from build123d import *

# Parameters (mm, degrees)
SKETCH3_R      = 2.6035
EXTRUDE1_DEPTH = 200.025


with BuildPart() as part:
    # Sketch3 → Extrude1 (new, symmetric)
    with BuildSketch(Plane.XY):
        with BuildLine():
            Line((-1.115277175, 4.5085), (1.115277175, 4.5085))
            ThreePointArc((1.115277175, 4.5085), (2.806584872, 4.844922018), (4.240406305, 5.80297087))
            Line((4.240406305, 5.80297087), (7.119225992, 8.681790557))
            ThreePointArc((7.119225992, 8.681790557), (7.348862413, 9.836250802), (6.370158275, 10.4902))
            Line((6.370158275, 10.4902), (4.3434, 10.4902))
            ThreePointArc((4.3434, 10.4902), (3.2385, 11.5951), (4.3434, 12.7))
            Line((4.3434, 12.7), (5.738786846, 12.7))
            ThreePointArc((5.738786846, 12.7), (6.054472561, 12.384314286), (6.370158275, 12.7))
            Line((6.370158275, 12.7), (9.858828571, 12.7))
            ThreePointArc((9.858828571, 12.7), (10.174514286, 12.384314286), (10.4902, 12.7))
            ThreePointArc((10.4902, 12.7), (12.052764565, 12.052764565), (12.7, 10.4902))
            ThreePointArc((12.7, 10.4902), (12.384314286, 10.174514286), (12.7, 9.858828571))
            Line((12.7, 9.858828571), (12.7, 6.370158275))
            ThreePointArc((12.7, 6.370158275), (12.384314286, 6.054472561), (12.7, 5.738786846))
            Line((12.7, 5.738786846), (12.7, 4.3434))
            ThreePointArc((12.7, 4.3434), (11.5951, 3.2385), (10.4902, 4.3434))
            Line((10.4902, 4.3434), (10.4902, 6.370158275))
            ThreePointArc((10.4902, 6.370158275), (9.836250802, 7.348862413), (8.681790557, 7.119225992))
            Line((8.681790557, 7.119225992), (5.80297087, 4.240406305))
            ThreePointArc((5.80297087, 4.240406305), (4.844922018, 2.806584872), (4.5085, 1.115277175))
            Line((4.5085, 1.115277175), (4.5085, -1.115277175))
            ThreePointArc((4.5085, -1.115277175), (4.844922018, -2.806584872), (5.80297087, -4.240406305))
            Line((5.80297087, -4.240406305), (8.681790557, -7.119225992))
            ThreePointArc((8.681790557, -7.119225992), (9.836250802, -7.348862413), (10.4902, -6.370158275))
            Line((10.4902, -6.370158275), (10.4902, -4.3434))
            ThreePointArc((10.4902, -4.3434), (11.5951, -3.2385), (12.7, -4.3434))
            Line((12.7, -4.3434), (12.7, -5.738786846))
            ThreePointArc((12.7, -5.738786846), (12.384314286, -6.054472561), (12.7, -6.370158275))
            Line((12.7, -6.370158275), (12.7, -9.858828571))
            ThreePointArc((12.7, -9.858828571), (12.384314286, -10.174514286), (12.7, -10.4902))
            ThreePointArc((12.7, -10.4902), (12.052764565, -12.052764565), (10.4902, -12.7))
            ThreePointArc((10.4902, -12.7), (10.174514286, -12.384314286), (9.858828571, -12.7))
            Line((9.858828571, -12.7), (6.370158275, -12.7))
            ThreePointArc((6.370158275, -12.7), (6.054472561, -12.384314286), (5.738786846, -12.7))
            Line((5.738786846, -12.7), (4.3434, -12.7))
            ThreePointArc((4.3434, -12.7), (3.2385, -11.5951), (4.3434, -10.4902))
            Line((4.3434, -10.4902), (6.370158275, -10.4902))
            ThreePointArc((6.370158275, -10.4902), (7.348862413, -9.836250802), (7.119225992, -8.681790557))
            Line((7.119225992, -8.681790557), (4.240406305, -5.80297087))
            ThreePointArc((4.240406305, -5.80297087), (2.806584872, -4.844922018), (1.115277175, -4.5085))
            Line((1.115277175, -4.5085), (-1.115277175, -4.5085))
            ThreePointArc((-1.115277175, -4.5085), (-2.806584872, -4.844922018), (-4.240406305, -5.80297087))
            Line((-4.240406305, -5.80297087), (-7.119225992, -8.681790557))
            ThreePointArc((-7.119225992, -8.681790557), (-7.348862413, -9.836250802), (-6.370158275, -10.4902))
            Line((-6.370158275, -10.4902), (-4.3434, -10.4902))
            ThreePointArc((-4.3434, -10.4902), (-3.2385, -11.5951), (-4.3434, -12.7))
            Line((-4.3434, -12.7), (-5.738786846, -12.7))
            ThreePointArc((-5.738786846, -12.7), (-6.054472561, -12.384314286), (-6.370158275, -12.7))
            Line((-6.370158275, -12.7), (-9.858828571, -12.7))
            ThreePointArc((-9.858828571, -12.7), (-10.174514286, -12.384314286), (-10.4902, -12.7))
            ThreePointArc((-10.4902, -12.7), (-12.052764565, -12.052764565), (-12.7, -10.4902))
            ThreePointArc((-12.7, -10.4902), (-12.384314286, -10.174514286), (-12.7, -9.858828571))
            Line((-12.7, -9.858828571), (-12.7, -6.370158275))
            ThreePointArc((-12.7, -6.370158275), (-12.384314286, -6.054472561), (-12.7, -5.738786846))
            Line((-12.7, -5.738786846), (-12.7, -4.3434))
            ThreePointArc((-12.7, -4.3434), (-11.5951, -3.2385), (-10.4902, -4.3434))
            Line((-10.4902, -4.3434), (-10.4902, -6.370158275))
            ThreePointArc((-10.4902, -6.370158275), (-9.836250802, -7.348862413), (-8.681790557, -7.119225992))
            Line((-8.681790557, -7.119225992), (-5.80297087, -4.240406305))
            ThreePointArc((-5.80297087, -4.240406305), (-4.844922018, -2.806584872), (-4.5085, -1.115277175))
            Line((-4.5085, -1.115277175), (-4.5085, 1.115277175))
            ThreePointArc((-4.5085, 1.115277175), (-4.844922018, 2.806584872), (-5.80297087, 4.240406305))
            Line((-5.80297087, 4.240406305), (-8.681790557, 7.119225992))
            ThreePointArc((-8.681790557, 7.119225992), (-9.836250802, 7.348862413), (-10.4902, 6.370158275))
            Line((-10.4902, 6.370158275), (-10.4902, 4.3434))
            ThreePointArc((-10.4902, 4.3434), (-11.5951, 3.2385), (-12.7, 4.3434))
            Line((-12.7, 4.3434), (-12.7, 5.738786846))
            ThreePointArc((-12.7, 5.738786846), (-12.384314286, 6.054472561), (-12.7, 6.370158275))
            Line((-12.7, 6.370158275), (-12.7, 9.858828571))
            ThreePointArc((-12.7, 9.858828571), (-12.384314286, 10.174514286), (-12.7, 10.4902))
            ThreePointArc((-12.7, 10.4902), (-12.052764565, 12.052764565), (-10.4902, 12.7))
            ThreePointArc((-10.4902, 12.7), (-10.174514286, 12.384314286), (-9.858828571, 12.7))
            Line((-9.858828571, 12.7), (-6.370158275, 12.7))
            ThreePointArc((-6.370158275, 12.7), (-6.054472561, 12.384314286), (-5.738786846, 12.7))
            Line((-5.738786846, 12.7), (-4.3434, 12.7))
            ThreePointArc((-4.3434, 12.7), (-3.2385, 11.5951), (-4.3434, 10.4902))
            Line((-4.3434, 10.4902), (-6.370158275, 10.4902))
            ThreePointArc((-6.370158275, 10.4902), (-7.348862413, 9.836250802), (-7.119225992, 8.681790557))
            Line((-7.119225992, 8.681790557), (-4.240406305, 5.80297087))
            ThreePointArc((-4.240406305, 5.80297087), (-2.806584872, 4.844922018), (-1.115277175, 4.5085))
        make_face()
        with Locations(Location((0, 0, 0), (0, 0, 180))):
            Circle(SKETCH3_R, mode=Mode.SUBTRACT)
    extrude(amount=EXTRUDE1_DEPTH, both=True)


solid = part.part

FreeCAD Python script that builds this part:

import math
import FreeCAD as App
import Part
import Sketcher
Q = App.Units.Quantity

doc = App.newDocument("Part")
body = doc.addObject("PartDesign::Body", "Body")

sketch1 = body.newObject("Sketcher::SketchObject", "Sketch")
sketch1.AttachmentSupport = (doc.getObject("XY_Plane"), [""])
sketch1.MapMode = "FlatFace"
sketch1.addGeometry(Part.LineSegment(App.Vector(1.12, 4.51, 0), App.Vector(-1.12, 4.51, 0)), False)
sketch1.addGeometry(Part.ArcOfCircle(Part.Circle(App.Vector(-1.12, 8.93, 0), App.Vector(0, 0, 1), 4.42), math.radians(-135), math.radians(-90)), False)
sketch1.addGeometry(Part.LineSegment(App.Vector(-4.24, 5.8, 0), App.Vector(-7.12, 8.68, 0)), False)
sketch1.addGeometry(Part.ArcOfCircle(Part.Circle(App.Vector(-6.37, 9.43, 0), App.Vector(0, 0, 1), 1.06), math.radians(90), math.radians(225)), False)
sketch1.addGeometry(Part.LineSegment(App.Vector(-6.37, 10.49, 0), App.Vector(-4.34, 10.49, 0)), False)
sketch1.addGeometry(Part.ArcOfCircle(Part.Circle(App.Vector(-4.34, 11.6, 0), App.Vector(0, 0, 1), 1.1), math.radians(-90), math.radians(90)), False)
sketch1.addGeometry(Part.LineSegment(App.Vector(-4.34, 12.7, 0), App.Vector(-5.74, 12.7, 0)), False)
sketch1.addGeometry(Part.ArcOfCircle(Part.Circle(App.Vector(-6.05, 12.7, 0), App.Vector(0, 0, 1), 0.32), math.radians(-180), math.radians(0)), False)
sketch1.addGeometry(Part.LineSegment(App.Vector(-6.37, 12.7, 0), App.Vector(-9.86, 12.7, 0)), False)
sketch1.addGeometry(Part.ArcOfCircle(Part.Circle(App.Vector(-10.17, 12.7, 0), App.Vector(0, 0, 1), 0.32), math.radians(-180), math.radians(0)), False)
sketch1.addGeometry(Part.ArcOfCircle(Part.Circle(App.Vector(-10.49, 10.49, 0), App.Vector(0, 0, 1), 2.21), math.radians(90), math.radians(180)), False)
sketch1.addGeometry(Part.ArcOfCircle(Part.Circle(App.Vector(-12.7, 10.17, 0), App.Vector(0, 0, 1), 0.32), math.radians(-90), math.radians(90)), False)
sketch1.addGeometry(Part.LineSegment(App.Vector(-12.7, 9.86, 0), App.Vector(-12.7, 6.37, 0)), False)
sketch1.addGeometry(Part.ArcOfCircle(Part.Circle(App.Vector(-12.7, 6.05, 0), App.Vector(0, 0, 1), 0.32), math.radians(-90), math.radians(90)), False)
sketch1.addGeometry(Part.LineSegment(App.Vector(-12.7, 5.74, 0), App.Vector(-12.7, 4.34, 0)), False)
sketch1.addGeometry(Part.ArcOfCircle(Part.Circle(App.Vector(-11.6, 4.34, 0), App.Vector(0, 0, 1), 1.1), math.radians(180), math.radians(360)), False)
sketch1.addGeometry(Part.LineSegment(App.Vector(-10.49, 4.34, 0), App.Vector(-10.49, 6.37, 0)), False)
sketch1.addGeometry(Part.ArcOfCircle(Part.Circle(App.Vector(-9.43, 6.37, 0), App.Vector(0, 0, 1), 1.06), math.radians(45), math.radians(180)), False)
sketch1.addGeometry(Part.LineSegment(App.Vector(-8.68, 7.12, 0), App.Vector(-5.8, 4.24, 0)), False)
sketch1.addGeometry(Part.ArcOfCircle(Part.Circle(App.Vector(-8.93, 1.12, 0), App.Vector(0, 0, 1), 4.42), math.radians(0), math.radians(45)), False)
sketch1.addGeometry(Part.LineSegment(App.Vector(-4.51, 1.12, 0), App.Vector(-4.51, -1.12, 0)), False)
sketch1.addGeometry(Part.ArcOfCircle(Part.Circle(App.Vector(-8.93, -1.12, 0), App.Vector(0, 0, 1), 4.42), math.radians(-45), math.radians(0)), False)
sketch1.addGeometry(Part.LineSegment(App.Vector(-5.8, -4.24, 0), App.Vector(-8.68, -7.12, 0)), False)
sketch1.addGeometry(Part.ArcOfCircle(Part.Circle(App.Vector(-9.43, -6.37, 0), App.Vector(0, 0, 1), 1.06), math.radians(180), math.radians(315)), False)
sketch1.addGeometry(Part.LineSegment(App.Vector(-10.49, -6.37, 0), App.Vector(-10.49, -4.34, 0)), False)
sketch1.addGeometry(Part.ArcOfCircle(Part.Circle(App.Vector(-11.6, -4.34, 0), App.Vector(0, 0, 1), 1.1), math.radians(0), math.radians(180)), False)
sketch1.addGeometry(Part.LineSegment(App.Vector(-12.7, -4.34, 0), App.Vector(-12.7, -5.74, 0)), False)
sketch1.addGeometry(Part.ArcOfCircle(Part.Circle(App.Vector(-12.7, -6.05, 0), App.Vector(0, 0, 1), 0.32), math.radians(-90), math.radians(90)), False)
sketch1.addGeometry(Part.LineSegment(App.Vector(-12.7, -6.37, 0), App.Vector(-12.7, -9.86, 0)), False)
sketch1.addGeometry(Part.ArcOfCircle(Part.Circle(App.Vector(-12.7, -10.17, 0), App.Vector(0, 0, 1), 0.32), math.radians(-90), math.radians(90)), False)
sketch1.addGeometry(Part.ArcOfCircle(Part.Circle(App.Vector(-10.49, -10.49, 0), App.Vector(0, 0, 1), 2.21), math.radians(180), math.radians(270)), False)
sketch1.addGeometry(Part.ArcOfCircle(Part.Circle(App.Vector(-10.17, -12.7, 0), App.Vector(0, 0, 1), 0.32), math.radians(0), math.radians(180)), False)
sketch1.addGeometry(Part.LineSegment(App.Vector(-9.86, -12.7, 0), App.Vector(-6.37, -12.7, 0)), False)
sketch1.addGeometry(Part.ArcOfCircle(Part.Circle(App.Vector(-6.05, -12.7, 0), App.Vector(0, 0, 1), 0.32), math.radians(0), math.radians(180)), False)
sketch1.addGeometry(Part.LineSegment(App.Vector(-5.74, -12.7, 0), App.Vector(-4.34, -12.7, 0)), False)
sketch1.addGeometry(Part.ArcOfCircle(Part.Circle(App.Vector(-4.34, -11.6, 0), App.Vector(0, 0, 1), 1.1), math.radians(-90), math.radians(90)), False)
sketch1.addGeometry(Part.LineSegment(App.Vector(-4.34, -10.49, 0), App.Vector(-6.37, -10.49, 0)), False)
sketch1.addGeometry(Part.ArcOfCircle(Part.Circle(App.Vector(-6.37, -9.43, 0), App.Vector(0, 0, 1), 1.06), math.radians(135), math.radians(270)), False)
sketch1.addGeometry(Part.LineSegment(App.Vector(-7.12, -8.68, 0), App.Vector(-4.24, -5.8, 0)), False)
sketch1.addGeometry(Part.ArcOfCircle(Part.Circle(App.Vector(-1.12, -8.93, 0), App.Vector(0, 0, 1), 4.42), math.radians(90), math.radians(135)), False)
sketch1.addGeometry(Part.LineSegment(App.Vector(-1.12, -4.51, 0), App.Vector(1.12, -4.51, 0)), False)
sketch1.addGeometry(Part.ArcOfCircle(Part.Circle(App.Vector(1.12, -8.93, 0), App.Vector(0, 0, 1), 4.42), math.radians(45), math.radians(90)), False)
sketch1.addGeometry(Part.LineSegment(App.Vector(4.24, -5.8, 0), App.Vector(7.12, -8.68, 0)), False)
sketch1.addGeometry(Part.ArcOfCircle(Part.Circle(App.Vector(6.37, -9.43, 0), App.Vector(0, 0, 1), 1.06), math.radians(-90), math.radians(45)), False)
sketch1.addGeometry(Part.LineSegment(App.Vector(6.37, -10.49, 0), App.Vector(4.34, -10.49, 0)), False)
sketch1.addGeometry(Part.ArcOfCircle(Part.Circle(App.Vector(4.34, -11.6, 0), App.Vector(0, 0, 1), 1.1), math.radians(90), math.radians(270)), False)
sketch1.addGeometry(Part.LineSegment(App.Vector(4.34, -12.7, 0), App.Vector(5.74, -12.7, 0)), False)
sketch1.addGeometry(Part.ArcOfCircle(Part.Circle(App.Vector(6.05, -12.7, 0), App.Vector(0, 0, 1), 0.32), math.radians(0), math.radians(180)), False)
sketch1.addGeometry(Part.LineSegment(App.Vector(6.37, -12.7, 0), App.Vector(9.86, -12.7, 0)), False)
sketch1.addGeometry(Part.ArcOfCircle(Part.Circle(App.Vector(10.17, -12.7, 0), App.Vector(0, 0, 1), 0.32), math.radians(0), math.radians(180)), False)
sketch1.addGeometry(Part.ArcOfCircle(Part.Circle(App.Vector(10.49, -10.49, 0), App.Vector(0, 0, 1), 2.21), math.radians(-90), math.radians(0)), False)
sketch1.addGeometry(Part.ArcOfCircle(Part.Circle(App.Vector(12.7, -10.17, 0), App.Vector(0, 0, 1), 0.32), math.radians(90), math.radians(270)), False)
sketch1.addGeometry(Part.LineSegment(App.Vector(12.7, -9.86, 0), App.Vector(12.7, -6.37, 0)), False)
sketch1.addGeometry(Part.ArcOfCircle(Part.Circle(App.Vector(12.7, -6.05, 0), App.Vector(0, 0, 1), 0.32), math.radians(90), math.radians(270)), False)
sketch1.addGeometry(Part.LineSegment(App.Vector(12.7, -5.74, 0), App.Vector(12.7, -4.34, 0)), False)
sketch1.addGeometry(Part.ArcOfCircle(Part.Circle(App.Vector(11.6, -4.34, 0), App.Vector(0, 0, 1), 1.1), math.radians(0), math.radians(180)), False)
sketch1.addGeometry(Part.LineSegment(App.Vector(10.49, -4.34, 0), App.Vector(10.49, -6.37, 0)), False)
sketch1.addGeometry(Part.ArcOfCircle(Part.Circle(App.Vector(9.43, -6.37, 0), App.Vector(0, 0, 1), 1.06), math.radians(-135), math.radians(0)), False)
sketch1.addGeometry(Part.LineSegment(App.Vector(8.68, -7.12, 0), App.Vector(5.8, -4.24, 0)), False)
sketch1.addGeometry(Part.ArcOfCircle(Part.Circle(App.Vector(8.93, -1.12, 0), App.Vector(0, 0, 1), 4.42), math.radians(-180), math.radians(-135)), False)
sketch1.addGeometry(Part.LineSegment(App.Vector(4.51, -1.12, 0), App.Vector(4.51, 1.12, 0)), False)
sketch1.addGeometry(Part.ArcOfCircle(Part.Circle(App.Vector(8.93, 1.12, 0), App.Vector(0, 0, 1), 4.42), math.radians(135), math.radians(180)), False)
sketch1.addGeometry(Part.LineSegment(App.Vector(5.8, 4.24, 0), App.Vector(8.68, 7.12, 0)), False)
sketch1.addGeometry(Part.ArcOfCircle(Part.Circle(App.Vector(9.43, 6.37, 0), App.Vector(0, 0, 1), 1.06), math.radians(0), math.radians(135)), False)
sketch1.addGeometry(Part.LineSegment(App.Vector(10.49, 6.37, 0), App.Vector(10.49, 4.34, 0)), False)
sketch1.addGeometry(Part.ArcOfCircle(Part.Circle(App.Vector(11.6, 4.34, 0), App.Vector(0, 0, 1), 1.1), math.radians(180), math.radians(360)), False)
sketch1.addGeometry(Part.LineSegment(App.Vector(12.7, 4.34, 0), App.Vector(12.7, 5.74, 0)), False)
sketch1.addGeometry(Part.ArcOfCircle(Part.Circle(App.Vector(12.7, 6.05, 0), App.Vector(0, 0, 1), 0.32), math.radians(90), math.radians(270)), False)
sketch1.addGeometry(Part.LineSegment(App.Vector(12.7, 6.37, 0), App.Vector(12.7, 9.86, 0)), False)
sketch1.addGeometry(Part.ArcOfCircle(Part.Circle(App.Vector(12.7, 10.17, 0), App.Vector(0, 0, 1), 0.32), math.radians(90), math.radians(270)), False)
sketch1.addGeometry(Part.ArcOfCircle(Part.Circle(App.Vector(10.49, 10.49, 0), App.Vector(0, 0, 1), 2.21), math.radians(0), math.radians(90)), False)
sketch1.addGeometry(Part.ArcOfCircle(Part.Circle(App.Vector(10.17, 12.7, 0), App.Vector(0, 0, 1), 0.32), math.radians(-180), math.radians(0)), False)
sketch1.addGeometry(Part.LineSegment(App.Vector(9.86, 12.7, 0), App.Vector(6.37, 12.7, 0)), False)
sketch1.addGeometry(Part.ArcOfCircle(Part.Circle(App.Vector(6.05, 12.7, 0), App.Vector(0, 0, 1), 0.32), math.radians(-180), math.radians(0)), False)
sketch1.addGeometry(Part.LineSegment(App.Vector(5.74, 12.7, 0), App.Vector(4.34, 12.7, 0)), False)
sketch1.addGeometry(Part.ArcOfCircle(Part.Circle(App.Vector(4.34, 11.6, 0), App.Vector(0, 0, 1), 1.1), math.radians(90), math.radians(270)), False)
sketch1.addGeometry(Part.LineSegment(App.Vector(4.34, 10.49, 0), App.Vector(6.37, 10.49, 0)), False)
sketch1.addGeometry(Part.ArcOfCircle(Part.Circle(App.Vector(6.37, 9.43, 0), App.Vector(0, 0, 1), 1.06), math.radians(-45), math.radians(90)), False)
sketch1.addGeometry(Part.LineSegment(App.Vector(7.12, 8.68, 0), App.Vector(4.24, 5.8, 0)), False)
sketch1.addGeometry(Part.ArcOfCircle(Part.Circle(App.Vector(1.12, 8.93, 0), App.Vector(0, 0, 1), 4.42), math.radians(-90), math.radians(-45)), False)
sketch1.addGeometry(Part.Circle(App.Vector(0, 0, 0), App.Vector(0, 0, 1), 2.6), False)
sketch1.addConstraint(Sketcher.Constraint("Tangent", 0, 2, 1, 2))
sketch1.addConstraint(Sketcher.Constraint("Tangent", 1, 1, 2, 1))
sketch1.addConstraint(Sketcher.Constraint("Tangent", 2, 2, 3, 2))
sketch1.addConstraint(Sketcher.Constraint("Tangent", 3, 1, 4, 1))
sketch1.addConstraint(Sketcher.Constraint("Tangent", 4, 2, 5, 1))
sketch1.addConstraint(Sketcher.Constraint("Tangent", 5, 2, 6, 1))
sketch1.addConstraint(Sketcher.Constraint("Coincident", 6, 2, 7, 2))
sketch1.addConstraint(Sketcher.Constraint("Coincident", 7, 1, 8, 1))
sketch1.addConstraint(Sketcher.Constraint("Coincident", 8, 2, 9, 2))
sketch1.addConstraint(Sketcher.Constraint("Coincident", 9, 1, 10, 1))
sketch1.addConstraint(Sketcher.Constraint("Coincident", 10, 2, 11, 2))
sketch1.addConstraint(Sketcher.Constraint("Coincident", 11, 1, 12, 1))
sketch1.addConstraint(Sketcher.Constraint("Coincident", 12, 2, 13, 2))
sketch1.addConstraint(Sketcher.Constraint("Coincident", 13, 1, 14, 1))
sketch1.addConstraint(Sketcher.Constraint("Tangent", 14, 2, 15, 1))
sketch1.addConstraint(Sketcher.Constraint("Tangent", 15, 2, 16, 1))
sketch1.addConstraint(Sketcher.Constraint("Tangent", 16, 2, 17, 2))
sketch1.addConstraint(Sketcher.Constraint("Tangent", 17, 1, 18, 1))
sketch1.addConstraint(Sketcher.Constraint("Tangent", 18, 2, 19, 2))
sketch1.addConstraint(Sketcher.Constraint("Tangent", 19, 1, 20, 1))
sketch1.addConstraint(Sketcher.Constraint("Tangent", 20, 2, 21, 2))
sketch1.addConstraint(Sketcher.Constraint("Tangent", 21, 1, 22, 1))
sketch1.addConstraint(Sketcher.Constraint("Tangent", 22, 2, 23, 2))
sketch1.addConstraint(Sketcher.Constraint("Tangent", 23, 1, 24, 1))
sketch1.addConstraint(Sketcher.Constraint("Tangent", 24, 2, 25, 1))
sketch1.addConstraint(Sketcher.Constraint("Tangent", 25, 2, 26, 1))
sketch1.addConstraint(Sketcher.Constraint("Coincident", 26, 2, 27, 2))
sketch1.addConstraint(Sketcher.Constraint("Coincident", 27, 1, 28, 1))
sketch1.addConstraint(Sketcher.Constraint("Coincident", 28, 2, 29, 2))
sketch1.addConstraint(Sketcher.Constraint("Coincident", 29, 1, 30, 1))
sketch1.addConstraint(Sketcher.Constraint("Coincident", 30, 2, 31, 2))
sketch1.addConstraint(Sketcher.Constraint("Coincident", 31, 1, 32, 1))
sketch1.addConstraint(Sketcher.Constraint("Coincident", 32, 2, 33, 2))
sketch1.addConstraint(Sketcher.Constraint("Coincident", 33, 1, 34, 1))
sketch1.addConstraint(Sketcher.Constraint("Tangent", 34, 2, 35, 1))
sketch1.addConstraint(Sketcher.Constraint("Tangent", 35, 2, 36, 1))
sketch1.addConstraint(Sketcher.Constraint("Tangent", 36, 2, 37, 2))
sketch1.addConstraint(Sketcher.Constraint("Tangent", 37, 1, 38, 1))
sketch1.addConstraint(Sketcher.Constraint("Tangent", 38, 2, 39, 2))
sketch1.addConstraint(Sketcher.Constraint("Tangent", 39, 1, 40, 1))
sketch1.addConstraint(Sketcher.Constraint("Tangent", 40, 2, 41, 2))
sketch1.addConstraint(Sketcher.Constraint("Tangent", 41, 1, 42, 1))
sketch1.addConstraint(Sketcher.Constraint("Tangent", 42, 2, 43, 2))
sketch1.addConstraint(Sketcher.Constraint("Tangent", 43, 1, 44, 1))
sketch1.addConstraint(Sketcher.Constraint("Tangent", 44, 2, 45, 1))
sketch1.addConstraint(Sketcher.Constraint("Tangent", 45, 2, 46, 1))
sketch1.addConstraint(Sketcher.Constraint("Coincident", 46, 2, 47, 2))
sketch1.addConstraint(Sketcher.Constraint("Coincident", 47, 1, 48, 1))
sketch1.addConstraint(Sketcher.Constraint("Coincident", 48, 2, 49, 2))
sketch1.addConstraint(Sketcher.Constraint("Coincident", 49, 1, 50, 1))
sketch1.addConstraint(Sketcher.Constraint("Coincident", 50, 2, 51, 2))
sketch1.addConstraint(Sketcher.Constraint("Coincident", 51, 1, 52, 1))
sketch1.addConstraint(Sketcher.Constraint("Coincident", 52, 2, 53, 2))
sketch1.addConstraint(Sketcher.Constraint("Coincident", 53, 1, 54, 1))
sketch1.addConstraint(Sketcher.Constraint("Tangent", 54, 2, 55, 1))
sketch1.addConstraint(Sketcher.Constraint("Tangent", 55, 2, 56, 1))
sketch1.addConstraint(Sketcher.Constraint("Tangent", 56, 2, 57, 2))
sketch1.addConstraint(Sketcher.Constraint("Tangent", 57, 1, 58, 1))
sketch1.addConstraint(Sketcher.Constraint("Tangent", 58, 2, 59, 2))
sketch1.addConstraint(Sketcher.Constraint("Tangent", 59, 1, 60, 1))
sketch1.addConstraint(Sketcher.Constraint("Tangent", 60, 2, 61, 2))
sketch1.addConstraint(Sketcher.Constraint("Tangent", 61, 1, 62, 1))
sketch1.addConstraint(Sketcher.Constraint("Tangent", 62, 2, 63, 2))
sketch1.addConstraint(Sketcher.Constraint("Tangent", 63, 1, 64, 1))
sketch1.addConstraint(Sketcher.Constraint("Tangent", 64, 2, 65, 1))
sketch1.addConstraint(Sketcher.Constraint("Tangent", 65, 2, 66, 1))
sketch1.addConstraint(Sketcher.Constraint("Coincident", 66, 2, 67, 2))
sketch1.addConstraint(Sketcher.Constraint("Coincident", 67, 1, 68, 1))
sketch1.addConstraint(Sketcher.Constraint("Coincident", 68, 2, 69, 2))
sketch1.addConstraint(Sketcher.Constraint("Coincident", 69, 1, 70, 1))
sketch1.addConstraint(Sketcher.Constraint("Coincident", 70, 2, 71, 2))
sketch1.addConstraint(Sketcher.Constraint("Coincident", 71, 1, 72, 1))
sketch1.addConstraint(Sketcher.Constraint("Coincident", 72, 2, 73, 2))
sketch1.addConstraint(Sketcher.Constraint("Coincident", 73, 1, 74, 1))
sketch1.addConstraint(Sketcher.Constraint("Tangent", 74, 2, 75, 1))
sketch1.addConstraint(Sketcher.Constraint("Tangent", 75, 2, 76, 1))
sketch1.addConstraint(Sketcher.Constraint("Tangent", 76, 2, 77, 2))
sketch1.addConstraint(Sketcher.Constraint("Tangent", 77, 1, 78, 1))
sketch1.addConstraint(Sketcher.Constraint("Tangent", 78, 2, 79, 2))
sketch1.addConstraint(Sketcher.Constraint("Tangent", 79, 1, 0, 1))
sketch1.addConstraint(Sketcher.Constraint("Horizontal", 0))
sketch1.addConstraint(Sketcher.Constraint("Horizontal", 4))
sketch1.addConstraint(Sketcher.Constraint("Horizontal", 6))
sketch1.addConstraint(Sketcher.Constraint("Horizontal", 8))
sketch1.addConstraint(Sketcher.Constraint("Vertical", 12))
sketch1.addConstraint(Sketcher.Constraint("Vertical", 14))
sketch1.addConstraint(Sketcher.Constraint("Vertical", 16))
sketch1.addConstraint(Sketcher.Constraint("Vertical", 20))
sketch1.addConstraint(Sketcher.Constraint("Vertical", 24))
sketch1.addConstraint(Sketcher.Constraint("Vertical", 26))
sketch1.addConstraint(Sketcher.Constraint("Vertical", 28))
sketch1.addConstraint(Sketcher.Constraint("Horizontal", 32))
sketch1.addConstraint(Sketcher.Constraint("Horizontal", 34))
sketch1.addConstraint(Sketcher.Constraint("Horizontal", 36))
sketch1.addConstraint(Sketcher.Constraint("Horizontal", 40))
sketch1.addConstraint(Sketcher.Constraint("Horizontal", 44))
sketch1.addConstraint(Sketcher.Constraint("Horizontal", 46))
sketch1.addConstraint(Sketcher.Constraint("Horizontal", 48))
sketch1.addConstraint(Sketcher.Constraint("Vertical", 52))
sketch1.addConstraint(Sketcher.Constraint("Vertical", 54))
sketch1.addConstraint(Sketcher.Constraint("Vertical", 56))
sketch1.addConstraint(Sketcher.Constraint("Vertical", 60))
sketch1.addConstraint(Sketcher.Constraint("Vertical", 64))
sketch1.addConstraint(Sketcher.Constraint("Vertical", 66))
sketch1.addConstraint(Sketcher.Constraint("Vertical", 68))
sketch1.addConstraint(Sketcher.Constraint("Horizontal", 72))
sketch1.addConstraint(Sketcher.Constraint("Horizontal", 74))
sketch1.addConstraint(Sketcher.Constraint("Horizontal", 76))
sketch1.addConstraint(Sketcher.Constraint("Coincident", 80, 3, -1, 1))
sketch1.addConstraint(Sketcher.Constraint("Equal", 7, 9))
sketch1.addConstraint(Sketcher.Constraint("Equal", 9, 11))
sketch1.addConstraint(Sketcher.Constraint("Equal", 11, 13))
sketch1.addConstraint(Sketcher.Constraint("Equal", 5, 15))
sketch1.addConstraint(Sketcher.Constraint("Equal", 3, 17))
sketch1.addConstraint(Sketcher.Constraint("Equal", 1, 19))
sketch1.addConstraint(Sketcher.Constraint("Equal", 19, 21))
sketch1.addConstraint(Sketcher.Constraint("Equal", 17, 23))
sketch1.addConstraint(Sketcher.Constraint("Equal", 15, 25))
sketch1.addConstraint(Sketcher.Constraint("Equal", 13, 27))
sketch1.addConstraint(Sketcher.Constraint("Equal", 27, 29))
sketch1.addConstraint(Sketcher.Constraint("Equal", 10, 30))
sketch1.addConstraint(Sketcher.Constraint("Equal", 29, 31))
sketch1.addConstraint(Sketcher.Constraint("Equal", 31, 33))
sketch1.addConstraint(Sketcher.Constraint("Equal", 25, 35))
sketch1.addConstraint(Sketcher.Constraint("Equal", 23, 37))
sketch1.addConstraint(Sketcher.Constraint("Equal", 21, 39))
sketch1.addConstraint(Sketcher.Constraint("Equal", 39, 41))
sketch1.addConstraint(Sketcher.Constraint("Equal", 37, 43))
sketch1.addConstraint(Sketcher.Constraint("Equal", 35, 45))
sketch1.addConstraint(Sketcher.Constraint("Equal", 33, 47))
sketch1.addConstraint(Sketcher.Constraint("Equal", 47, 49))
sketch1.addConstraint(Sketcher.Constraint("Equal", 30, 50))
sketch1.addConstraint(Sketcher.Constraint("Equal", 49, 51))
sketch1.addConstraint(Sketcher.Constraint("Equal", 51, 53))
sketch1.addConstraint(Sketcher.Constraint("Equal", 45, 55))
sketch1.addConstraint(Sketcher.Constraint("Equal", 43, 57))
sketch1.addConstraint(Sketcher.Constraint("Equal", 41, 59))
sketch1.addConstraint(Sketcher.Constraint("Equal", 59, 61))
sketch1.addConstraint(Sketcher.Constraint("Equal", 57, 63))
sketch1.addConstraint(Sketcher.Constraint("Equal", 55, 65))
sketch1.addConstraint(Sketcher.Constraint("Equal", 53, 67))
sketch1.addConstraint(Sketcher.Constraint("Equal", 67, 69))
sketch1.addConstraint(Sketcher.Constraint("Equal", 50, 70))
sketch1.addConstraint(Sketcher.Constraint("Equal", 69, 71))
sketch1.addConstraint(Sketcher.Constraint("Equal", 71, 73))
sketch1.addConstraint(Sketcher.Constraint("Equal", 65, 75))
sketch1.addConstraint(Sketcher.Constraint("Equal", 63, 77))
sketch1.addConstraint(Sketcher.Constraint("Equal", 61, 79))
sketch1.addConstraint(Sketcher.Constraint("Symmetric", 1, 3, 41, 3, -1, 1))
sketch1.addConstraint(Sketcher.Constraint("Symmetric", 3, 3, 43, 3, -1, 1))
sketch1.addConstraint(Sketcher.Constraint("Symmetric", 7, 3, 47, 3, -1, 1))
sketch1.addConstraint(Sketcher.Constraint("Symmetric", 9, 3, 49, 3, -1, 1))
sketch1.addConstraint(Sketcher.Constraint("Symmetric", 10, 3, 50, 3, -1, 1))
sketch1.addConstraint(Sketcher.Constraint("Symmetric", 11, 3, 51, 3, -1, 1))
sketch1.addConstraint(Sketcher.Constraint("Symmetric", 13, 3, 53, 3, -1, 1))
sketch1.addConstraint(Sketcher.Constraint("Symmetric", 15, 3, 55, 3, -1, 1))
sketch1.addConstraint(Sketcher.Constraint("Symmetric", 19, 3, 59, 3, -1, 1))
sketch1.addConstraint(Sketcher.Constraint("Symmetric", 23, 3, 63, 3, -1, 1))
sketch1.addConstraint(Sketcher.Constraint("Symmetric", 27, 3, 67, 3, -1, 1))
sketch1.addConstraint(Sketcher.Constraint("Symmetric", 29, 3, 69, 3, -1, 1))
sketch1.addConstraint(Sketcher.Constraint("Symmetric", 30, 3, 70, 3, -1, 1))
sketch1.addConstraint(Sketcher.Constraint("Symmetric", 31, 3, 71, 3, -1, 1))
sketch1.addConstraint(Sketcher.Constraint("Symmetric", 33, 3, 73, 3, -1, 1))
sketch1.addConstraint(Sketcher.Constraint("Symmetric", 35, 3, 75, 3, -1, 1))
sketch1.addConstraint(Sketcher.Constraint("Symmetric", 37, 1, 77, 1, -1, 1))
sketch1.addConstraint(Sketcher.Constraint("Symmetric", 37, 3, 43, 3, -2))
sketch1.addConstraint(Sketcher.Constraint("Symmetric", 33, 3, 47, 3, -2))
sketch1.addConstraint(Sketcher.Constraint("Symmetric", 31, 3, 49, 3, -2))
sketch1.addConstraint(Sketcher.Constraint("Symmetric", 30, 3, 50, 3, -2))
sketch1.addConstraint(Sketcher.Constraint("Symmetric", 29, 3, 51, 3, -2))
sketch1.addConstraint(Sketcher.Constraint("Symmetric", 27, 3, 53, 3, -2))
sketch1.addConstraint(Sketcher.Constraint("Symmetric", 25, 3, 55, 3, -2))
sketch1.addConstraint(Sketcher.Constraint("Symmetric", 22, 2, 57, 1, -2))
sketch1.addConstraint(Sketcher.Constraint("Symmetric", 18, 2, 61, 1, -2))
sketch1.addConstraint(Sketcher.Constraint("Parallel", 2, 18))
sketch1.addConstraint(Sketcher.Constraint("Perpendicular", 18, 22))
sketch1.addConstraint(Sketcher.Constraint("Parallel", 22, 38))
sketch1.addConstraint(Sketcher.Constraint("Horizontal", 7, 3, 9, 3))
sketch1.addConstraint(Sketcher.Constraint("Horizontal", 15, 3, 65, 3))
sketch1.addConstraint(Sketcher.Constraint("Horizontal", 70, 3, 3, 1))
sketch1.addConstraint(Sketcher.Constraint("Horizontal", 73, 3, 5, 2))
sketch1.addConstraint(Sketcher.Constraint("Horizontal", 6, 2, 7, 1))
sketch1.addConstraint(Sketcher.Constraint("Horizontal", 8, 2, 9, 1))
sketch1.addConstraint(Sketcher.Constraint("Horizontal", 4, 2, 10, 2))
sketch1.addConstraint(Sketcher.Constraint("Horizontal", 63, 3, 12, 2))
sketch1.addConstraint(Sketcher.Constraint("Horizontal", 30, 2, 31, 1))
sketch1.addConstraint(Sketcher.Constraint("Horizontal", 46, 2, 47, 1))
sketch1.addConstraint(Sketcher.Constraint("Horizontal", 70, 2, 71, 1))
sketch1.addConstraint(Sketcher.Constraint("Vertical", 11, 3, 13, 3))
sketch1.addConstraint(Sketcher.Constraint("Vertical", 5, 3, 35, 3))
sketch1.addConstraint(Sketcher.Constraint("Vertical", 45, 3, 75, 3))
sketch1.addConstraint(Sketcher.Constraint("Vertical", 3, 1, 7, 1))
sketch1.addConstraint(Sketcher.Constraint("Vertical", 30, 3, 9, 1))
sketch1.addConstraint(Sketcher.Constraint("Vertical", 29, 3, 10, 2))
sketch1.addConstraint(Sketcher.Constraint("Vertical", 10, 2, 11, 1))
sketch1.addConstraint(Sketcher.Constraint("Vertical", 12, 2, 13, 1))
sketch1.addConstraint(Sketcher.Constraint("Vertical", 26, 2, 27, 1))
sketch1.addConstraint(Sketcher.Constraint("Vertical", 50, 2, 51, 1))
sketch1.addConstraint(Sketcher.Constraint("Vertical", 66, 2, 67, 1))
sketch1.addConstraint(Sketcher.Constraint("Equal", 72, 12))
sketch1.addConstraint(Sketcher.Constraint("Equal", 74, 14))
sketch1.addConstraint(Sketcher.Constraint("Equal", 40, 20))
sketch1.addConstraint(Sketcher.Constraint("Equal", 2, 18))
sketch1.addConstraint(Sketcher.Constraint("Diameter", 80, Q("0.205 in")))
sketch1.addConstraint(Sketcher.Constraint("Radius", 1, Q("0.174 in")))
sketch1.addConstraint(Sketcher.Constraint("Radius", 10, Q("0.087 in")))
sketch1.addConstraint(Sketcher.Constraint("DistanceY", -1, 1, 7, 3, Q("0.5 in")))
sketch1.addConstraint(Sketcher.Constraint("DistanceX", 5, 3, -1, 1, Q("0.171 in")))
sketch1.addConstraint(Sketcher.Constraint("Radius", 3, 1.059342))
sketch1.addConstraint(Sketcher.Constraint("DistanceY", -1, 1, 1, 3, Q("0.3515 in")))
sketch1.addConstraint(Sketcher.Constraint("Radius", 7, 0.315686))
sketch1.addConstraint(Sketcher.Constraint("DistanceX", 4, 1, 4, 2, 2.026758))
pad1 = body.newObject("PartDesign::Pad", "Pad")
pad1.Profile = sketch1
pad1.Length = Q("15.75 in")
pad1.Midplane = True

doc.recompute()
